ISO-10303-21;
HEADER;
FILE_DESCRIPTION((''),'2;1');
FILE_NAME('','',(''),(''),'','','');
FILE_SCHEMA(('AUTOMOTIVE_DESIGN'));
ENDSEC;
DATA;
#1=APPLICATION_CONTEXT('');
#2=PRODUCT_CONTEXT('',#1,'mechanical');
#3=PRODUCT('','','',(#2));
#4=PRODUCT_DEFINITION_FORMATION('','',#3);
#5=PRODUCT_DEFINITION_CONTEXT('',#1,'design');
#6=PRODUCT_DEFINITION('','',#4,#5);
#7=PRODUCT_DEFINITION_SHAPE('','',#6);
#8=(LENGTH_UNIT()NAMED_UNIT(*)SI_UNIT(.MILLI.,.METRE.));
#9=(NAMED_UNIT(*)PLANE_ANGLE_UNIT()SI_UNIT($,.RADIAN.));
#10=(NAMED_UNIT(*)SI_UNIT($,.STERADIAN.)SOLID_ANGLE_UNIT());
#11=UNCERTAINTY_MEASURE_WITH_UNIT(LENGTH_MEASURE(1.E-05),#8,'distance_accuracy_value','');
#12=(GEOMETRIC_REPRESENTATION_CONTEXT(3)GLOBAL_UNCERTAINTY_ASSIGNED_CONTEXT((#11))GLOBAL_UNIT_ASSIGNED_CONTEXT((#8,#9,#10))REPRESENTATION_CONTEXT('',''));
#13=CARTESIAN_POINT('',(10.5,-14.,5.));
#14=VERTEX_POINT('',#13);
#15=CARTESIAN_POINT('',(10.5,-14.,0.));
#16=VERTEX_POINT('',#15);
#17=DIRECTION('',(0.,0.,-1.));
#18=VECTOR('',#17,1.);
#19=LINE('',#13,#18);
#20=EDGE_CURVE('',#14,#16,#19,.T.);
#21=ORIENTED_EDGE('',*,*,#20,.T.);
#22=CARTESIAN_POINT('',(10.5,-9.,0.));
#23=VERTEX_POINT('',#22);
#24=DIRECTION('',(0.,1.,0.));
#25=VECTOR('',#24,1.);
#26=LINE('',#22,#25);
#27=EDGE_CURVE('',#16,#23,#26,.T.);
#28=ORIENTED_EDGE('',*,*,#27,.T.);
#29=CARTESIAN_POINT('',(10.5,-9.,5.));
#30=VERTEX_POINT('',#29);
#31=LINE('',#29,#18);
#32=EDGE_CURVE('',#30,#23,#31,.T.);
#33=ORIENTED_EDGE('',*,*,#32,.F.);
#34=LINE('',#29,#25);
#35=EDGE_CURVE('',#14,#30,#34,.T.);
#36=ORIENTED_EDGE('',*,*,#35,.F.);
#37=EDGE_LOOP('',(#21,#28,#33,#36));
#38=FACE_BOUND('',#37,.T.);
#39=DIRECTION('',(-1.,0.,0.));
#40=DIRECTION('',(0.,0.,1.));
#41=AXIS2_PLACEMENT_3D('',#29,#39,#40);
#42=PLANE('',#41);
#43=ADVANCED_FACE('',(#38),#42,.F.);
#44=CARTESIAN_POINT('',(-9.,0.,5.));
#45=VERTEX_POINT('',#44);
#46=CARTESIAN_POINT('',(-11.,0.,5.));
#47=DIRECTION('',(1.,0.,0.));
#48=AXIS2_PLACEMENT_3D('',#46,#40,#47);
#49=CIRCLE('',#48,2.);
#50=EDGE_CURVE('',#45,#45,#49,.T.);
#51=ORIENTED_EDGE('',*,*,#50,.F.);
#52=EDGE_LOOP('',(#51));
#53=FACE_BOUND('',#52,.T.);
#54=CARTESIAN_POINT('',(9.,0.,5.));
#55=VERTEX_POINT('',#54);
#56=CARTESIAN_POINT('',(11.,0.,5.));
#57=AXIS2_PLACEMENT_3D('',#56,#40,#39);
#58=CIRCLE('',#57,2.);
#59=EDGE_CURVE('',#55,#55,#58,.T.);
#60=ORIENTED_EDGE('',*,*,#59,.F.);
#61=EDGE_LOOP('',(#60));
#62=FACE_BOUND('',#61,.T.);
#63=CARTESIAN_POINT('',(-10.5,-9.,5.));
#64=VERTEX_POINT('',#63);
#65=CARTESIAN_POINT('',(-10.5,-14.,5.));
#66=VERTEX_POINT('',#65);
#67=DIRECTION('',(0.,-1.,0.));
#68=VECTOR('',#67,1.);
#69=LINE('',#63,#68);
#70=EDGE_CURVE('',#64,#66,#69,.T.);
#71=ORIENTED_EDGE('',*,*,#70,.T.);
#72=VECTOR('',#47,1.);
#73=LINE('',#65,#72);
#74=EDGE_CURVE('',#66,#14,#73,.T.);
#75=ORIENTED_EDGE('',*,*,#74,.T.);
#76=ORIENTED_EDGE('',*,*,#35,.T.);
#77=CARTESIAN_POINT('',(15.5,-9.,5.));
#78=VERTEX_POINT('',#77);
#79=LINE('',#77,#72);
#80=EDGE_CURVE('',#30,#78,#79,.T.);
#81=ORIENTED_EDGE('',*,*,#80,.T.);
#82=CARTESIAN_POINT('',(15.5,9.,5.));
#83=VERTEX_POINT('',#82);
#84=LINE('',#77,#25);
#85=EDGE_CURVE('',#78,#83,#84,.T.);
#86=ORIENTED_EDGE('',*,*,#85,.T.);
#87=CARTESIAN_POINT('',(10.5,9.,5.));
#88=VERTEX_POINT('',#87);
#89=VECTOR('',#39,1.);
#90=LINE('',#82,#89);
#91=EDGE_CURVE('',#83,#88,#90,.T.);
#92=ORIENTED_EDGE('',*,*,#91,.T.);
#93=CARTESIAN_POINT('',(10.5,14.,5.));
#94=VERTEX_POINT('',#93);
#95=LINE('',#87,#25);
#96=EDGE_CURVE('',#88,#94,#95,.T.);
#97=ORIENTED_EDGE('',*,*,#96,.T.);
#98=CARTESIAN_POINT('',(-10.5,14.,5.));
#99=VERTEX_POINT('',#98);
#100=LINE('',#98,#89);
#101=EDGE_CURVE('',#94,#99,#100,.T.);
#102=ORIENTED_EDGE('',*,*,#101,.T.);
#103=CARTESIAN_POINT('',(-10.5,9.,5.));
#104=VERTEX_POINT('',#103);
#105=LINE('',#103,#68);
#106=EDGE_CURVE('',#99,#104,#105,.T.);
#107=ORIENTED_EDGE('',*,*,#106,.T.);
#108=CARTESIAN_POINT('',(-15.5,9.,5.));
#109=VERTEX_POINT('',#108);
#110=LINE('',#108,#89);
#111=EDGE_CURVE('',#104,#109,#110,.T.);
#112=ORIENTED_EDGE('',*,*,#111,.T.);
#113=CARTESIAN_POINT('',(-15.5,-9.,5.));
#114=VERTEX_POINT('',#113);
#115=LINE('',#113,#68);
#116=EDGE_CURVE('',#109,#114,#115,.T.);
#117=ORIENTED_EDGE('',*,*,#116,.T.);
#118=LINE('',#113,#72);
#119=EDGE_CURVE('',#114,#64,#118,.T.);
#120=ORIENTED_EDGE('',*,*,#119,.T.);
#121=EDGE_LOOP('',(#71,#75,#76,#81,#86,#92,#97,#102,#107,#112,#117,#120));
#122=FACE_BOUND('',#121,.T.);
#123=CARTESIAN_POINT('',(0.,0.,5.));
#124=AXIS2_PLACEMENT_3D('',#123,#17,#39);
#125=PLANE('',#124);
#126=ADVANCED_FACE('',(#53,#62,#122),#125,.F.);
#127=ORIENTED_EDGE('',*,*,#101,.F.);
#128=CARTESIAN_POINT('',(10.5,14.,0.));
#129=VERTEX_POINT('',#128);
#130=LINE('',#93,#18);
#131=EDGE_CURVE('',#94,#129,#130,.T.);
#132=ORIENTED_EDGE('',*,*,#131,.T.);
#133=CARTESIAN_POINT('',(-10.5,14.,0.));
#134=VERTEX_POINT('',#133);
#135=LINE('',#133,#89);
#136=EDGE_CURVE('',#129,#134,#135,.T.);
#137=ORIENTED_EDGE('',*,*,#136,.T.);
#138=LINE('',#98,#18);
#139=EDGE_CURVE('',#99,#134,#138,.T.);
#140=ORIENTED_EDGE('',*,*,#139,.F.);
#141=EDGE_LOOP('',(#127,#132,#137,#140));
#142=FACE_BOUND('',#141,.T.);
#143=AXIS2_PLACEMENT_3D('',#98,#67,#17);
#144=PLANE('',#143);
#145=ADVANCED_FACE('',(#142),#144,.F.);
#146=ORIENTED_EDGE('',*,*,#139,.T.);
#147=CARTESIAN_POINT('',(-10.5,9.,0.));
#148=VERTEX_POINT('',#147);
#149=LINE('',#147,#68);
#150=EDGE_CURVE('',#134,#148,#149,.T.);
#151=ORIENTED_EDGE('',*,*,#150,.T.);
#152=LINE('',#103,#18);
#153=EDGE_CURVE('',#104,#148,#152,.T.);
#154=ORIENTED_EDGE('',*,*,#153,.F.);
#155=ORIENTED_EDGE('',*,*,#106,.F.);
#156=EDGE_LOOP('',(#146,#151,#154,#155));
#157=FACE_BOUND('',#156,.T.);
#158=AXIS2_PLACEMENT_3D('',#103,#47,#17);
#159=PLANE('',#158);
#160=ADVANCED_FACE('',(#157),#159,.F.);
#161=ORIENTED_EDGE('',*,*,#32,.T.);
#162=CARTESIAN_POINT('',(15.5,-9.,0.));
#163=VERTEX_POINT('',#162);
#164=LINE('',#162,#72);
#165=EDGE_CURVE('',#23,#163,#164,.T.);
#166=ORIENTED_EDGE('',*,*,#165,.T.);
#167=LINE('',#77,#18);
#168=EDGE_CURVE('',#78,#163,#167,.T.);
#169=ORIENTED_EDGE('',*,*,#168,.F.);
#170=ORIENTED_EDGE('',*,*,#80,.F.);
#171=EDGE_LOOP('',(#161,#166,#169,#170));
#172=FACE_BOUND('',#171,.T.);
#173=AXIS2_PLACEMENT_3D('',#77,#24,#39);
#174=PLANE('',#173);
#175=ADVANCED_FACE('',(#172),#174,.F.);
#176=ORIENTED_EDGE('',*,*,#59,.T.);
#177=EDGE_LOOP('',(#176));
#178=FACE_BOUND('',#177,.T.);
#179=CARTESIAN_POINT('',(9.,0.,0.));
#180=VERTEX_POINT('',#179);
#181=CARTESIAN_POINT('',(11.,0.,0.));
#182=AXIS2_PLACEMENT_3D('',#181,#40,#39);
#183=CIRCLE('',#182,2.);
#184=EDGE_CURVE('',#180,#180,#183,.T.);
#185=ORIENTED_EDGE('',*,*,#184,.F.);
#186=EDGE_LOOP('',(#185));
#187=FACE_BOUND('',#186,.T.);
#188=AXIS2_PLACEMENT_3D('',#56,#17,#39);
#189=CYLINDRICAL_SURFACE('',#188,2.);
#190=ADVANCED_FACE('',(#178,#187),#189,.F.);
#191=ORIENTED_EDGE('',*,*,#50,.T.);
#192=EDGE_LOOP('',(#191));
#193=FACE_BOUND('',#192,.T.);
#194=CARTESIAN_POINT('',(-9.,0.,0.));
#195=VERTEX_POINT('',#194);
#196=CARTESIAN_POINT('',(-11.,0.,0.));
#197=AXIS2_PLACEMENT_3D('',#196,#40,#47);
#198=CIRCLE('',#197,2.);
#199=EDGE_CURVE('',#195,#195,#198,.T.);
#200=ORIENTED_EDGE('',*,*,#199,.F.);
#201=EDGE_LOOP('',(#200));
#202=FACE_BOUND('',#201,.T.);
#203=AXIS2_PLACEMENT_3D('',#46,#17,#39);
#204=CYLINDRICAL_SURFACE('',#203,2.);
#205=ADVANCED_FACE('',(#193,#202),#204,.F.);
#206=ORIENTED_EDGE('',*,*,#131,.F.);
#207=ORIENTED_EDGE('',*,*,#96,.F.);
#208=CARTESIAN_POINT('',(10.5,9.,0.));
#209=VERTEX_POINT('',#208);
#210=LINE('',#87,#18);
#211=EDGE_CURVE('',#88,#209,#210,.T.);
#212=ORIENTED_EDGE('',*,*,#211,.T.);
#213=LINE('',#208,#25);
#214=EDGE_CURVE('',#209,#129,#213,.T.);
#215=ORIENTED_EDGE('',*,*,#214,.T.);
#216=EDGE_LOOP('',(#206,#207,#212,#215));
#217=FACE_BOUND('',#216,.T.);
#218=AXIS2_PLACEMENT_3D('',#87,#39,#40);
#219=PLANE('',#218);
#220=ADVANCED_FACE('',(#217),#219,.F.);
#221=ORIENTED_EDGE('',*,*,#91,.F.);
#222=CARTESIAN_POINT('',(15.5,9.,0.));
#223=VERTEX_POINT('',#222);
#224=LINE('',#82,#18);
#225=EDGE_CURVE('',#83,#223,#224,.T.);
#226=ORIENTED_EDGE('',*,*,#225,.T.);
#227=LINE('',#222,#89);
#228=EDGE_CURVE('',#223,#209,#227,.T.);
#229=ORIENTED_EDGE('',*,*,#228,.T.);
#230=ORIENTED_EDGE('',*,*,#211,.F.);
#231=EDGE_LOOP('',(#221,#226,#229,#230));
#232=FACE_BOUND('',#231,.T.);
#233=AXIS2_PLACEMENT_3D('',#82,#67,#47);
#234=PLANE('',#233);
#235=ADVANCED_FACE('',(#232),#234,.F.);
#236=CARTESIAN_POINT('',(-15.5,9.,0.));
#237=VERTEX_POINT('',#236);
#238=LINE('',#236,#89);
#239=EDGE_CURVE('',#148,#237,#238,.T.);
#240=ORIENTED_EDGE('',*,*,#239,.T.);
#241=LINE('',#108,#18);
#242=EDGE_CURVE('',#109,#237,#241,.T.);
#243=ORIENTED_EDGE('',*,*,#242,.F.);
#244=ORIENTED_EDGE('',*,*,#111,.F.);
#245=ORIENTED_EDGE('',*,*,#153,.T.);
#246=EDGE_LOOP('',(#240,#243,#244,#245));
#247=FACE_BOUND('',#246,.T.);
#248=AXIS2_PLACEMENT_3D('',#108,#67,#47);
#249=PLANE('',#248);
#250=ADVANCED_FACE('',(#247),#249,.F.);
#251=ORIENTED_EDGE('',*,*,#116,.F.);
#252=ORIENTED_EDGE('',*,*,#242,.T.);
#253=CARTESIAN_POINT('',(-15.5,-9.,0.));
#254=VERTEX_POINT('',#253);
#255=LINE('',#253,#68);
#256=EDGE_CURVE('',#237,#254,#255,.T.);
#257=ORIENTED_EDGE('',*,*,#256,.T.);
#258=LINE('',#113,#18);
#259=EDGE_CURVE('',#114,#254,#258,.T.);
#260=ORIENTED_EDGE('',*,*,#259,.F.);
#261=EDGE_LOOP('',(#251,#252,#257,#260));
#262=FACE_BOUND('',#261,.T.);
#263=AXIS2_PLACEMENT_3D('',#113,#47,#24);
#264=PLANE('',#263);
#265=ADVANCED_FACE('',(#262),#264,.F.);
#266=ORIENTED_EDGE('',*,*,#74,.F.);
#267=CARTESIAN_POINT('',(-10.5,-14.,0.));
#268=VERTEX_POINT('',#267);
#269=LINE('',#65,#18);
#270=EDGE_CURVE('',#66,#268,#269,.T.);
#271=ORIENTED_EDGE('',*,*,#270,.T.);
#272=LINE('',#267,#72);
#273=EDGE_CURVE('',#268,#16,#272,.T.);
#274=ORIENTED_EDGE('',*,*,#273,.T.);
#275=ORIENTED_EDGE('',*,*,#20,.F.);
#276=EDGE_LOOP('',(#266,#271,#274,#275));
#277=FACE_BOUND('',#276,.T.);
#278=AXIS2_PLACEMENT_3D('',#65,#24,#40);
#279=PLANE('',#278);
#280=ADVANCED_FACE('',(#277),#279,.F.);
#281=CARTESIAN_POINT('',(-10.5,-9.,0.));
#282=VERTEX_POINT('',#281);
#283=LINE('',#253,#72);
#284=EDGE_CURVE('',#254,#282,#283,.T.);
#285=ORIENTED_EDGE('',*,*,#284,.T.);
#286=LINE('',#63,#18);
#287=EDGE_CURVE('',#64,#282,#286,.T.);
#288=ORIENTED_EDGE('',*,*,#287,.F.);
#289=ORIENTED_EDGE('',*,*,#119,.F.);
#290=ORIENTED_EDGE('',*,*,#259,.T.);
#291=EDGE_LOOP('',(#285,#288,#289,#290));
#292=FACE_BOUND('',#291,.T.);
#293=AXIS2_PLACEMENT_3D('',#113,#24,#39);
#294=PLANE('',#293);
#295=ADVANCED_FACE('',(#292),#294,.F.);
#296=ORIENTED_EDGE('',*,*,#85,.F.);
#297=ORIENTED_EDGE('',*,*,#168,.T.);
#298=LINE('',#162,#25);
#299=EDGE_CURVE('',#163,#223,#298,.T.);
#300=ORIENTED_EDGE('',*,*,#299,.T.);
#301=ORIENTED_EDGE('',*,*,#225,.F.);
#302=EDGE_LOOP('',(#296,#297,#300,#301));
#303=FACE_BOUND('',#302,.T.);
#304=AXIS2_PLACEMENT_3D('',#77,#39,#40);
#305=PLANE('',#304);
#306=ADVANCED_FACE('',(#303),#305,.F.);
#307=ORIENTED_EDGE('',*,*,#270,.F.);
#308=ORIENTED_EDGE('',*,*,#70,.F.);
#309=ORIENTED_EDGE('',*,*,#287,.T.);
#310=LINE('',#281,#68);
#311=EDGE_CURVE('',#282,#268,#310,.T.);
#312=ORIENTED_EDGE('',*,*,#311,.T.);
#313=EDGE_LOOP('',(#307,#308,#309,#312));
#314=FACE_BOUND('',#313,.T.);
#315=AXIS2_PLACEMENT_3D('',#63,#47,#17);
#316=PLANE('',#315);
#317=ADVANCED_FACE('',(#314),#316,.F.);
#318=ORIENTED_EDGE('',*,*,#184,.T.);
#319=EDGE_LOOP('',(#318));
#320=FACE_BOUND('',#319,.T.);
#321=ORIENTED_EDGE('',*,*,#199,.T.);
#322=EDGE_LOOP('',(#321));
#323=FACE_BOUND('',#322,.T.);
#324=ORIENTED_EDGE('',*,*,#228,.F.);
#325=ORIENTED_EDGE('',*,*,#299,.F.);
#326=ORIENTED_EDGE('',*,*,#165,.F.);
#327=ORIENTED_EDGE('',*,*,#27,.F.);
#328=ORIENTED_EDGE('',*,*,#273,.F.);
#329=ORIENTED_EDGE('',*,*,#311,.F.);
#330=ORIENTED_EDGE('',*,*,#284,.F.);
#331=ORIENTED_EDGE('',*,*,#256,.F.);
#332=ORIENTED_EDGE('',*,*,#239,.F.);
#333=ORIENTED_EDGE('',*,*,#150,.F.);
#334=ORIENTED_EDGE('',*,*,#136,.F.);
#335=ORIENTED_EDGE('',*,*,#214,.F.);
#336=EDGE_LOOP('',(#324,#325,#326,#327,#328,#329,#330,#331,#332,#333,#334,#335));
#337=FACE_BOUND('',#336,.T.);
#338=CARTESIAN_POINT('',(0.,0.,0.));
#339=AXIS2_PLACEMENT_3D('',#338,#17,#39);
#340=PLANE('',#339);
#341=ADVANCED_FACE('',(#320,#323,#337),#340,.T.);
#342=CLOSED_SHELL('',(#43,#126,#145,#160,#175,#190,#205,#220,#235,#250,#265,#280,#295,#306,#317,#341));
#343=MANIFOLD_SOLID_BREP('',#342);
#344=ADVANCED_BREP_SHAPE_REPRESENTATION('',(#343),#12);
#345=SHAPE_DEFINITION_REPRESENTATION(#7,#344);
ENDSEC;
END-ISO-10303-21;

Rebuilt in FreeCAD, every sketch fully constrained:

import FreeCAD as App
import Part
import Sketcher
from FreeCAD import Vector
Q = App.Units.Quantity

doc = App.newDocument("Part")
params = doc.addObject("Spreadsheet::Sheet", "Params")
for row, (alias, value) in enumerate([
    ("sketch1_diameter", "4 mm"),
    ("sketch1_width", "5 mm"),
    ("sketch1_width2", "21 mm"),
    ("sketch1_height", "18 mm"),
    ("pad1_length", "5 mm"),
], start=1):
    params.set(f"A{row}", alias)
    params.set(f"B{row}", "=" + value)
    params.setAlias(f"B{row}", alias)

body = doc.addObject("PartDesign::Body", "Body")

# Sketch on XY plane
sketch1 = body.newObject("Sketcher::SketchObject", "Sketch")
sketch1.AttachmentSupport = (doc.getObject("XY_Plane"), [""])
sketch1.MapMode = "FlatFace"
sketch1.addGeometry([
    Part.LineSegment(Vector(-15.5, 9, 0), Vector(-15.5, -9, 0)),  # 0
    Part.LineSegment(Vector(-15.5, -9, 0), Vector(-10.5, -9, 0)),  # 1
    Part.LineSegment(Vector(-10.5, -9, 0), Vector(-10.5, -14, 0)),  # 2
    Part.LineSegment(Vector(-10.5, -14, 0), Vector(10.5, -14, 0)),  # 3
    Part.LineSegment(Vector(10.5, -14, 0), Vector(10.5, -9, 0)),  # 4
    Part.LineSegment(Vector(10.5, -9, 0), Vector(15.5, -9, 0)),  # 5
    Part.LineSegment(Vector(15.5, -9, 0), Vector(15.5, 9, 0)),  # 6
    Part.LineSegment(Vector(15.5, 9, 0), Vector(10.5, 9, 0)),  # 7
    Part.LineSegment(Vector(10.5, 9, 0), Vector(10.5, 14, 0)),  # 8
    Part.LineSegment(Vector(10.5, 14, 0), Vector(-10.5, 14, 0)),  # 9
    Part.LineSegment(Vector(-10.5, 14, 0), Vector(-10.5, 9, 0)),  # 10
    Part.LineSegment(Vector(-10.5, 9, 0), Vector(-15.5, 9, 0)),  # 11
    Part.Circle(Vector(11, 0, 0), Vector(0, 0, 1), 2),  # 12
    Part.Circle(Vector(-11, 0, 0), Vector(0, 0, 1), 2),  # 13
], False)
sketch1.addConstraint([
    Sketcher.Constraint("Coincident", 0, 2, 1, 1),
    Sketcher.Constraint("Coincident", 1, 2, 2, 1),
    Sketcher.Constraint("Coincident", 2, 2, 3, 1),
    Sketcher.Constraint("Coincident", 3, 2, 4, 1),
    Sketcher.Constraint("Coincident", 4, 2, 5, 1),
    Sketcher.Constraint("Coincident", 5, 2, 6, 1),
    Sketcher.Constraint("Coincident", 6, 2, 7, 1),
    Sketcher.Constraint("Coincident", 7, 2, 8, 1),
    Sketcher.Constraint("Coincident", 8, 2, 9, 1),
    Sketcher.Constraint("Coincident", 9, 2, 10, 1),
    Sketcher.Constraint("Coincident", 10, 2, 11, 1),
    Sketcher.Constraint("Coincident", 11, 2, 0, 1),
    Sketcher.Constraint("Vertical", 0),
    Sketcher.Constraint("Horizontal", 1),
    Sketcher.Constraint("Vertical", 2),
    Sketcher.Constraint("Horizontal", 3),
    Sketcher.Constraint("Vertical", 4),
    Sketcher.Constraint("Horizontal", 5),
    Sketcher.Constraint("Vertical", 6),
    Sketcher.Constraint("Horizontal", 7),
    Sketcher.Constraint("Vertical", 8),
    Sketcher.Constraint("Horizontal", 9),
    Sketcher.Constraint("Vertical", 10),
    Sketcher.Constraint("Horizontal", 11),
    Sketcher.Constraint("Equal", 12, 13),
    Sketcher.Constraint("Symmetric", 12, 3, 13, 3, -1, 1),
    Sketcher.Constraint("Symmetric", 0, 2, 6, 2, -1, 1),
    Sketcher.Constraint("Symmetric", 2, 2, 8, 2, -1, 1),
    Sketcher.Constraint("Symmetric", 4, 2, 10, 2, -1, 1),
    Sketcher.Constraint("Symmetric", 1, 2, 4, 2, -2),
    Sketcher.Constraint("PointOnObject", 12, 3, -1),
    Sketcher.Constraint("Equal", 11, 2),
    Sketcher.Constraint("Diameter", 12, Q("4 mm")),
    Sketcher.Constraint("DistanceX", 1, 1, 1, 2, Q("5 mm")),
    Sketcher.Constraint("DistanceX", 3, 1, 3, 2, Q("21 mm")),
    Sketcher.Constraint("DistanceY", 0, 2, 0, 1, Q("18 mm")),
    Sketcher.Constraint("DistanceX", -1, 1, 12, 3, Q("11 mm")),
])
sketch1.setExpression("Constraints[32]", "Params.sketch1_diameter")
sketch1.setExpression("Constraints[33]", "Params.sketch1_width")
sketch1.setExpression("Constraints[34]", "Params.sketch1_width2")
sketch1.setExpression("Constraints[35]", "Params.sketch1_height")
pad1 = body.newObject("PartDesign::Pad", "Pad")
pad1.Profile = sketch1
pad1.setExpression("Length", "Params.pad1_length")

doc.recompute()
